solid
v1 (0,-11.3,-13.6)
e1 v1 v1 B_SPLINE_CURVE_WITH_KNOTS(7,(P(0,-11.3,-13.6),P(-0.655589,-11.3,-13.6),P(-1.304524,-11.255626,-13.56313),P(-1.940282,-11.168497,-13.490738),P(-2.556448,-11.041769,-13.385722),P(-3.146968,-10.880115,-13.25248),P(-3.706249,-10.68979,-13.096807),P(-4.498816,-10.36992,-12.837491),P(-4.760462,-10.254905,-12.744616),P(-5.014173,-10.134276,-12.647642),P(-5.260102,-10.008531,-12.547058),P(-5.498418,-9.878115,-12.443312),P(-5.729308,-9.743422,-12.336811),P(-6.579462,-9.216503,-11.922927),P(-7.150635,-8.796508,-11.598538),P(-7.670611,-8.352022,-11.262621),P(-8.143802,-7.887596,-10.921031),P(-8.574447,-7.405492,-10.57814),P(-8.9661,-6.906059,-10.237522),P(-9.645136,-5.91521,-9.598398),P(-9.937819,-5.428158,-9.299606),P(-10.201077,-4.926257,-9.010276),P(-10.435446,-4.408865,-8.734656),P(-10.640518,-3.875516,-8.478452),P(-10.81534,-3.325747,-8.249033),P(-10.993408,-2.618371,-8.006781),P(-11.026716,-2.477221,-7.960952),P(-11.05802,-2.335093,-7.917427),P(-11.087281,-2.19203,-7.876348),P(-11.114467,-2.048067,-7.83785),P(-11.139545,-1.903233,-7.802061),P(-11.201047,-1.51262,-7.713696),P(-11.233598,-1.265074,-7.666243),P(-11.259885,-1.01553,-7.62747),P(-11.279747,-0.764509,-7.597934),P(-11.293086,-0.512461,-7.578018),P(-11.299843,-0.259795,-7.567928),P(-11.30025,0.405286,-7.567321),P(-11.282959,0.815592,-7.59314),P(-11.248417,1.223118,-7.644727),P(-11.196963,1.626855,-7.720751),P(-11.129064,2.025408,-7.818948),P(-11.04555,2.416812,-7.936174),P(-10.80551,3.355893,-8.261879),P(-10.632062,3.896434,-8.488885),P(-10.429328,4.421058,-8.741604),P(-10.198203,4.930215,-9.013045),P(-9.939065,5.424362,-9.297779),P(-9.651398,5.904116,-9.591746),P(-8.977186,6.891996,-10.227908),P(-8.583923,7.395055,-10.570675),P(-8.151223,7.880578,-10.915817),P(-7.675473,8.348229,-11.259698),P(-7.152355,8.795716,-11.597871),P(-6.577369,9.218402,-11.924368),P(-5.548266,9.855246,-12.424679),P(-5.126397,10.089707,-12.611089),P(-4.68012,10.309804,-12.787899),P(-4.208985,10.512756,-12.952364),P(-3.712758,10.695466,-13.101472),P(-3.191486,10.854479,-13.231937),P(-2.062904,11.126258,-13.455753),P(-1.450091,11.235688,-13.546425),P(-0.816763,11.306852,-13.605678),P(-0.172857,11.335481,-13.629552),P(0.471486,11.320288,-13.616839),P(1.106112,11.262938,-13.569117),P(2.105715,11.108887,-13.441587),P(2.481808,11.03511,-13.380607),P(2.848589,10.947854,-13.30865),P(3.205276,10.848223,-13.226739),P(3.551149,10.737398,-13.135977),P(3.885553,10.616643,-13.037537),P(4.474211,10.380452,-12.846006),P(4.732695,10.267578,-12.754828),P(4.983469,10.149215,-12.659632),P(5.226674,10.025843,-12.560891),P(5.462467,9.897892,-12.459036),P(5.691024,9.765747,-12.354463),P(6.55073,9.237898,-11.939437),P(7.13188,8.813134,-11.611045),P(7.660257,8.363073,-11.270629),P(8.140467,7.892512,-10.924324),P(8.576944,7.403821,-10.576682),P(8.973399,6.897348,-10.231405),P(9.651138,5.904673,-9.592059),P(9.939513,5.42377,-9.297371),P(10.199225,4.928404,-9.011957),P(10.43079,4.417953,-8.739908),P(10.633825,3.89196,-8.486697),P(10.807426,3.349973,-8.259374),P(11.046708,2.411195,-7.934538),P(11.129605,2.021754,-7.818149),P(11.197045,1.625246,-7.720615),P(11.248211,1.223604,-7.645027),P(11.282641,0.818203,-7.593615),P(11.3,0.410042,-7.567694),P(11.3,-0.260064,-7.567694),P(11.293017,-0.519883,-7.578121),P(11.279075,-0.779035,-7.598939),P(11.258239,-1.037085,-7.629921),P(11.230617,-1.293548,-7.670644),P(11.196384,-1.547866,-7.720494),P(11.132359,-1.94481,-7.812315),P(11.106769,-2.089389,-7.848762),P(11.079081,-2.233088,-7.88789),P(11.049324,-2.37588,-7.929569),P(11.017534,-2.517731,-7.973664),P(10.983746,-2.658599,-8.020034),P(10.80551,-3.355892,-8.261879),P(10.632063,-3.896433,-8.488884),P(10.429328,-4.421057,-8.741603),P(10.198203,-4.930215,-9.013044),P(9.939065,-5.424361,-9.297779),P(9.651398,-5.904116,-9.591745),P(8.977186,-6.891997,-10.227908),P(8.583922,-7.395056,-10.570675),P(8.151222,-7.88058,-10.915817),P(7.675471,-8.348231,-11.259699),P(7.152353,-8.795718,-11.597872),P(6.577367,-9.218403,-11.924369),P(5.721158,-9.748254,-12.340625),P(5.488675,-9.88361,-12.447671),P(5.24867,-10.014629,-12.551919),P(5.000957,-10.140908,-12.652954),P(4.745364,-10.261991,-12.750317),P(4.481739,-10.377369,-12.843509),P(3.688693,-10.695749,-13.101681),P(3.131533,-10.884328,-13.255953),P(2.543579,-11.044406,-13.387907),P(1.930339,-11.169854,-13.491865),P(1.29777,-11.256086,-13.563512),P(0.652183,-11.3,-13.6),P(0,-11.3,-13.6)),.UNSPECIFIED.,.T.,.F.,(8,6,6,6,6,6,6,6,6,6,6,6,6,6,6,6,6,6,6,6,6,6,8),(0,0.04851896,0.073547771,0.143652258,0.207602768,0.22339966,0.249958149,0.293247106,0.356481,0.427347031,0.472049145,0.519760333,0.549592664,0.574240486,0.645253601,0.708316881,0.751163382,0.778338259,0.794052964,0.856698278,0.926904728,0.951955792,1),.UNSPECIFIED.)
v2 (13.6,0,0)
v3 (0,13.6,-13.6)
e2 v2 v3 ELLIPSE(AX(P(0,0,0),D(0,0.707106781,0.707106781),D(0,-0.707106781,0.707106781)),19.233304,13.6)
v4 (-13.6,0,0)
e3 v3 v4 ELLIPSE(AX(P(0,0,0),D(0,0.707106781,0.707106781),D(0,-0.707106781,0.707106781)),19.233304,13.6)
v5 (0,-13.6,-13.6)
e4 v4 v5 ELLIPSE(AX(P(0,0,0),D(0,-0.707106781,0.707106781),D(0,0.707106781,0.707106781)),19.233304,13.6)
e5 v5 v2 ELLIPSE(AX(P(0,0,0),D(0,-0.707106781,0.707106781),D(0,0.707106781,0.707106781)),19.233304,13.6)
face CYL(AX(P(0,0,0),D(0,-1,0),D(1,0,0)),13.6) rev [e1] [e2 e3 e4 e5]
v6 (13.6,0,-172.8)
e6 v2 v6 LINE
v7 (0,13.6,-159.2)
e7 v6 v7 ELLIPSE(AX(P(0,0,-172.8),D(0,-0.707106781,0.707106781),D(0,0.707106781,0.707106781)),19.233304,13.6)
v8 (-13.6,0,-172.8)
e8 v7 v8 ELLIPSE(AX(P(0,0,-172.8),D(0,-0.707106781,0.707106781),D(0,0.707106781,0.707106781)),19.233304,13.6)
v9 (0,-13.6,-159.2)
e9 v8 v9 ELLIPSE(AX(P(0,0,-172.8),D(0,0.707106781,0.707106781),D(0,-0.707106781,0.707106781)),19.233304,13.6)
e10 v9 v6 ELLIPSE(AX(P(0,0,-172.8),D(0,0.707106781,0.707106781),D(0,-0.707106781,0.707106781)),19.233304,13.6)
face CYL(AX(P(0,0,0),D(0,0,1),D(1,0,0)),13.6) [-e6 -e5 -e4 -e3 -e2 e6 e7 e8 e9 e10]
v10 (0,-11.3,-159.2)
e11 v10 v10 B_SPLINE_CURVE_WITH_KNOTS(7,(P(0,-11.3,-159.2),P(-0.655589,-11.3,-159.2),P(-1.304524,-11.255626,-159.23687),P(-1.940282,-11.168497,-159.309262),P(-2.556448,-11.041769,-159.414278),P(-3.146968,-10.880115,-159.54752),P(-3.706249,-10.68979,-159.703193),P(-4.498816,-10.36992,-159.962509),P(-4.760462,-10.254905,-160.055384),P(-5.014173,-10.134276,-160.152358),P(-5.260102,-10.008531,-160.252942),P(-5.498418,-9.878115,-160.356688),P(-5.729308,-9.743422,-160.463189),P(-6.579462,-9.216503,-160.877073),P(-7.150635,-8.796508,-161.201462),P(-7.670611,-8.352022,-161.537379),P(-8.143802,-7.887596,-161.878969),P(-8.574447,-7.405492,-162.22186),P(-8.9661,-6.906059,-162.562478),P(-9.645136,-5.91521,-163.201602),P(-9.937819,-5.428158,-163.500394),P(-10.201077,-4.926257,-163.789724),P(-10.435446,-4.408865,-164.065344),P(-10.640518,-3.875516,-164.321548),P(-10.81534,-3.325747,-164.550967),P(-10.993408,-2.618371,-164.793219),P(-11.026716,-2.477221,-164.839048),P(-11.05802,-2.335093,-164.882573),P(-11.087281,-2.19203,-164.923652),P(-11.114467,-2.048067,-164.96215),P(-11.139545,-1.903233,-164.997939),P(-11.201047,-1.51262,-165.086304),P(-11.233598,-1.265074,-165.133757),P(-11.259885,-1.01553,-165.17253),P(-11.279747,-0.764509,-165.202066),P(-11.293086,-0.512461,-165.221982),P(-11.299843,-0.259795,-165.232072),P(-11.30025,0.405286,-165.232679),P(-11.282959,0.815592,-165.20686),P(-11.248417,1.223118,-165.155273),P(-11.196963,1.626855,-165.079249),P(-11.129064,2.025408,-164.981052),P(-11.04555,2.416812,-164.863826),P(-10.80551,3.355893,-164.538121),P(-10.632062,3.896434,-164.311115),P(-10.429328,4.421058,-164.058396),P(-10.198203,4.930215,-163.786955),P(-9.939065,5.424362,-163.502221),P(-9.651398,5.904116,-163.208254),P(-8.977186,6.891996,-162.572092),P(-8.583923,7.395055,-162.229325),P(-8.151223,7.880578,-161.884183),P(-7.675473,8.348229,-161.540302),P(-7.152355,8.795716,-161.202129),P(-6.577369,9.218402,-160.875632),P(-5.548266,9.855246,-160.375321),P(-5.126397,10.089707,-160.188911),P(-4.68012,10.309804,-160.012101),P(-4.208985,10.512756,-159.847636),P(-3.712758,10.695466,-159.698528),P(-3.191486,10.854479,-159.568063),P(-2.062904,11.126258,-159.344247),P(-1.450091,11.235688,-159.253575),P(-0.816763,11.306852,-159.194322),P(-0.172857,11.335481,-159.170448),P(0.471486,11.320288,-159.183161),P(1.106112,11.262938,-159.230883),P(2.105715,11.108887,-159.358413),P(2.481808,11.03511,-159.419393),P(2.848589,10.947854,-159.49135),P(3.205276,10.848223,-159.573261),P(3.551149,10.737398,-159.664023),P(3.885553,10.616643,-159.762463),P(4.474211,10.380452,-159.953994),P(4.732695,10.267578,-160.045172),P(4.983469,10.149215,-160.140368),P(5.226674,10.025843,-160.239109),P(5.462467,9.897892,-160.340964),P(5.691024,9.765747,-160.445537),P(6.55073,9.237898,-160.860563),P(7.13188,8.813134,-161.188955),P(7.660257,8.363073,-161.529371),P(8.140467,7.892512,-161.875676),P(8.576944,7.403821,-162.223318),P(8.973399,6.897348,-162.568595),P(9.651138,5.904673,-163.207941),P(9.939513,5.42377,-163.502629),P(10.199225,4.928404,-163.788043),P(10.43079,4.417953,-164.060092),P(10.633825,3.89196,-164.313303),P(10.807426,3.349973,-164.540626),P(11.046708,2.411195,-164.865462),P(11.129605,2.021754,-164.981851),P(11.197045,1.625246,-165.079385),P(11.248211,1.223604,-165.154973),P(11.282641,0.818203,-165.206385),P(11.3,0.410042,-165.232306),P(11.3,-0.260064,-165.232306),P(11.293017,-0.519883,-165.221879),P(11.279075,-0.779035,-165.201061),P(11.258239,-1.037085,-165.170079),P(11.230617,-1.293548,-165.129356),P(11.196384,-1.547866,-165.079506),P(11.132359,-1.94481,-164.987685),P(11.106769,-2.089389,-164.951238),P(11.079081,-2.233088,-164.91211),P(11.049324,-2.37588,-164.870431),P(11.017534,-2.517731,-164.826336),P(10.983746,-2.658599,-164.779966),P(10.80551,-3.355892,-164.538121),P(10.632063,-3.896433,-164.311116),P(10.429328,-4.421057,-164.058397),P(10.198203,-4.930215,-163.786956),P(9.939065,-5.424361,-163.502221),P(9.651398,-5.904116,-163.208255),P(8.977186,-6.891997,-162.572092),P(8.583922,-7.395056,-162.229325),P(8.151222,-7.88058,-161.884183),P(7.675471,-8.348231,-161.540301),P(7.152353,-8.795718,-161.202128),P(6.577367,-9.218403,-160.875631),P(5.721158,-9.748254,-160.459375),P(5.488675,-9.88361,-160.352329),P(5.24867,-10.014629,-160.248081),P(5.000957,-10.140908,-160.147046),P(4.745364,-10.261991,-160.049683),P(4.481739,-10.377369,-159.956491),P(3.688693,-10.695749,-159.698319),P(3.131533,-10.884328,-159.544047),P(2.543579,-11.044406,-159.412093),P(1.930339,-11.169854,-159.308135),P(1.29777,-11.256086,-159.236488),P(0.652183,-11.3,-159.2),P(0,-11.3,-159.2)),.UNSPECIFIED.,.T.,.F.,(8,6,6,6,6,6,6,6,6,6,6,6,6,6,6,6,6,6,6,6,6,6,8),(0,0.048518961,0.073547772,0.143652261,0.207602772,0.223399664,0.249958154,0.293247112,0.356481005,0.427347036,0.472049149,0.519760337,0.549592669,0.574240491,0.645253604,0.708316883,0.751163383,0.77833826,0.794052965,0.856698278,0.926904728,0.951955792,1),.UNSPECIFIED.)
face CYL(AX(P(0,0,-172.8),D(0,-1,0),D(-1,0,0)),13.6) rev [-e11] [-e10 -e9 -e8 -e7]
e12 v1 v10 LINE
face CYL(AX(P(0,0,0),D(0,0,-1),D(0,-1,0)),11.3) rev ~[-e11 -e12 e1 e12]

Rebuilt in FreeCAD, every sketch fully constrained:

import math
import FreeCAD as App
import Part
import Sketcher
from FreeCAD import Vector

doc = App.newDocument("Part")
body = doc.addObject("PartDesign::Body", "Body")

sketch1 = doc.addObject("Sketcher::SketchObject", "Sketch")
body.addObject(sketch1)
sketch1.AttachmentSupport = (doc.XY_Plane, [""])
sketch1.MapMode = "FlatFace"
sketch1.addGeometry(Part.Circle(Vector(0, 0, 0), Vector(0, 0, 1), 14), False)
sketch1.addConstraint([
    Sketcher.Constraint("Coincident", 0, 3, -1, 1),
    Sketcher.Constraint("Diameter", 0, 27.2),
])
pad1 = doc.addObject("PartDesign::Pad", "Pad")
body.addObject(pad1)
pad1.Profile = sketch1
pad1.Length = 172.8
pad1.Reversed = True

sketch2 = doc.addObject("Sketcher::SketchObject", "Sketch001")
body.addObject(sketch2)
sketch2.AttachmentSupport = (doc.XY_Plane, [""])
sketch2.MapMode = "FlatFace"
sketch2.addGeometry(Part.Circle(Vector(0, 0, 0), Vector(0, 0, 1), 11), False)
sketch2.addConstraint([
    Sketcher.Constraint("Coincident", 0, 3, -1, 1),
    Sketcher.Constraint("Diameter", 0, 22.6),
])
doc.recompute()
hole = doc.addObject("PartDesign::Hole", "Hole")
body.addObject(hole)
hole.Profile = sketch2
hole.ThreadType = "None"
hole.Diameter = 22.6
hole.DepthType = "ThroughAll"

sketch3 = doc.addObject("Sketcher::SketchObject", "Sketch002")
body.addObject(sketch3)
sketch3.AttachmentSupport = (doc.XZ_Plane, [""])
sketch3.MapMode = "FlatFace"
sketch3.addGeometry([
    Part.LineSegment(Vector(-14, 0, 0), Vector(14, 0, 0)),
    Part.ArcOfCircle(Part.Circle(Vector(0, 0, 0), Vector(0, 0, 1), 14), math.radians(180), math.radians(360)),
], False)
sketch3.addConstraint([
    Sketcher.Constraint("Coincident", 0, 1, 1, 1),
    Sketcher.Constraint("Coincident", 1, 2, 0, 2),
    Sketcher.Constraint("Horizontal", 0),
    Sketcher.Constraint("Coincident", 1, 3, -1, 1),
    Sketcher.Constraint("PointOnObject", 0, 1, -1),
    Sketcher.Constraint("Radius", 1, 13.6),
])
pocket1 = doc.addObject("PartDesign::Pocket", "Pocket")
body.addObject(pocket1)
pocket1.Profile = sketch3
pocket1.Length = 27.2
pocket1.Midplane = True

sketch4 = doc.addObject("Sketcher::SketchObject", "Sketch003")
body.addObject(sketch4)
sketch4.AttachmentSupport = (doc.XZ_Plane, [""])
sketch4.MapMode = "FlatFace"
sketch4.addGeometry([
    Part.ArcOfCircle(Part.Circle(Vector(0, -173, 0), Vector(0, 0, 1), 14), math.radians(0), math.radians(180)),
    Part.LineSegment(Vector(14, -173, 0), Vector(-14, -173, 0)),
], False)
sketch4.addConstraint([
    Sketcher.Constraint("Coincident", 0, 1, 1, 1),
    Sketcher.Constraint("Coincident", 1, 2, 0, 2),
    Sketcher.Constraint("Horizontal", 1),
    Sketcher.Constraint("PointOnObject", 0, 3, -2),
    Sketcher.Constraint("Radius", 0, 13.6),
    Sketcher.Constraint("DistanceY", 0, 3, -1, 1, 172.8),
    Sketcher.Constraint("DistanceY", 0, 1, -1, 1, 172.8),
])
pocket2 = doc.addObject("PartDesign::Pocket", "Pocket001")
body.addObject(pocket2)
pocket2.Profile = sketch4
pocket2.Length = 27.2
pocket2.Midplane = True

doc.recompute()
